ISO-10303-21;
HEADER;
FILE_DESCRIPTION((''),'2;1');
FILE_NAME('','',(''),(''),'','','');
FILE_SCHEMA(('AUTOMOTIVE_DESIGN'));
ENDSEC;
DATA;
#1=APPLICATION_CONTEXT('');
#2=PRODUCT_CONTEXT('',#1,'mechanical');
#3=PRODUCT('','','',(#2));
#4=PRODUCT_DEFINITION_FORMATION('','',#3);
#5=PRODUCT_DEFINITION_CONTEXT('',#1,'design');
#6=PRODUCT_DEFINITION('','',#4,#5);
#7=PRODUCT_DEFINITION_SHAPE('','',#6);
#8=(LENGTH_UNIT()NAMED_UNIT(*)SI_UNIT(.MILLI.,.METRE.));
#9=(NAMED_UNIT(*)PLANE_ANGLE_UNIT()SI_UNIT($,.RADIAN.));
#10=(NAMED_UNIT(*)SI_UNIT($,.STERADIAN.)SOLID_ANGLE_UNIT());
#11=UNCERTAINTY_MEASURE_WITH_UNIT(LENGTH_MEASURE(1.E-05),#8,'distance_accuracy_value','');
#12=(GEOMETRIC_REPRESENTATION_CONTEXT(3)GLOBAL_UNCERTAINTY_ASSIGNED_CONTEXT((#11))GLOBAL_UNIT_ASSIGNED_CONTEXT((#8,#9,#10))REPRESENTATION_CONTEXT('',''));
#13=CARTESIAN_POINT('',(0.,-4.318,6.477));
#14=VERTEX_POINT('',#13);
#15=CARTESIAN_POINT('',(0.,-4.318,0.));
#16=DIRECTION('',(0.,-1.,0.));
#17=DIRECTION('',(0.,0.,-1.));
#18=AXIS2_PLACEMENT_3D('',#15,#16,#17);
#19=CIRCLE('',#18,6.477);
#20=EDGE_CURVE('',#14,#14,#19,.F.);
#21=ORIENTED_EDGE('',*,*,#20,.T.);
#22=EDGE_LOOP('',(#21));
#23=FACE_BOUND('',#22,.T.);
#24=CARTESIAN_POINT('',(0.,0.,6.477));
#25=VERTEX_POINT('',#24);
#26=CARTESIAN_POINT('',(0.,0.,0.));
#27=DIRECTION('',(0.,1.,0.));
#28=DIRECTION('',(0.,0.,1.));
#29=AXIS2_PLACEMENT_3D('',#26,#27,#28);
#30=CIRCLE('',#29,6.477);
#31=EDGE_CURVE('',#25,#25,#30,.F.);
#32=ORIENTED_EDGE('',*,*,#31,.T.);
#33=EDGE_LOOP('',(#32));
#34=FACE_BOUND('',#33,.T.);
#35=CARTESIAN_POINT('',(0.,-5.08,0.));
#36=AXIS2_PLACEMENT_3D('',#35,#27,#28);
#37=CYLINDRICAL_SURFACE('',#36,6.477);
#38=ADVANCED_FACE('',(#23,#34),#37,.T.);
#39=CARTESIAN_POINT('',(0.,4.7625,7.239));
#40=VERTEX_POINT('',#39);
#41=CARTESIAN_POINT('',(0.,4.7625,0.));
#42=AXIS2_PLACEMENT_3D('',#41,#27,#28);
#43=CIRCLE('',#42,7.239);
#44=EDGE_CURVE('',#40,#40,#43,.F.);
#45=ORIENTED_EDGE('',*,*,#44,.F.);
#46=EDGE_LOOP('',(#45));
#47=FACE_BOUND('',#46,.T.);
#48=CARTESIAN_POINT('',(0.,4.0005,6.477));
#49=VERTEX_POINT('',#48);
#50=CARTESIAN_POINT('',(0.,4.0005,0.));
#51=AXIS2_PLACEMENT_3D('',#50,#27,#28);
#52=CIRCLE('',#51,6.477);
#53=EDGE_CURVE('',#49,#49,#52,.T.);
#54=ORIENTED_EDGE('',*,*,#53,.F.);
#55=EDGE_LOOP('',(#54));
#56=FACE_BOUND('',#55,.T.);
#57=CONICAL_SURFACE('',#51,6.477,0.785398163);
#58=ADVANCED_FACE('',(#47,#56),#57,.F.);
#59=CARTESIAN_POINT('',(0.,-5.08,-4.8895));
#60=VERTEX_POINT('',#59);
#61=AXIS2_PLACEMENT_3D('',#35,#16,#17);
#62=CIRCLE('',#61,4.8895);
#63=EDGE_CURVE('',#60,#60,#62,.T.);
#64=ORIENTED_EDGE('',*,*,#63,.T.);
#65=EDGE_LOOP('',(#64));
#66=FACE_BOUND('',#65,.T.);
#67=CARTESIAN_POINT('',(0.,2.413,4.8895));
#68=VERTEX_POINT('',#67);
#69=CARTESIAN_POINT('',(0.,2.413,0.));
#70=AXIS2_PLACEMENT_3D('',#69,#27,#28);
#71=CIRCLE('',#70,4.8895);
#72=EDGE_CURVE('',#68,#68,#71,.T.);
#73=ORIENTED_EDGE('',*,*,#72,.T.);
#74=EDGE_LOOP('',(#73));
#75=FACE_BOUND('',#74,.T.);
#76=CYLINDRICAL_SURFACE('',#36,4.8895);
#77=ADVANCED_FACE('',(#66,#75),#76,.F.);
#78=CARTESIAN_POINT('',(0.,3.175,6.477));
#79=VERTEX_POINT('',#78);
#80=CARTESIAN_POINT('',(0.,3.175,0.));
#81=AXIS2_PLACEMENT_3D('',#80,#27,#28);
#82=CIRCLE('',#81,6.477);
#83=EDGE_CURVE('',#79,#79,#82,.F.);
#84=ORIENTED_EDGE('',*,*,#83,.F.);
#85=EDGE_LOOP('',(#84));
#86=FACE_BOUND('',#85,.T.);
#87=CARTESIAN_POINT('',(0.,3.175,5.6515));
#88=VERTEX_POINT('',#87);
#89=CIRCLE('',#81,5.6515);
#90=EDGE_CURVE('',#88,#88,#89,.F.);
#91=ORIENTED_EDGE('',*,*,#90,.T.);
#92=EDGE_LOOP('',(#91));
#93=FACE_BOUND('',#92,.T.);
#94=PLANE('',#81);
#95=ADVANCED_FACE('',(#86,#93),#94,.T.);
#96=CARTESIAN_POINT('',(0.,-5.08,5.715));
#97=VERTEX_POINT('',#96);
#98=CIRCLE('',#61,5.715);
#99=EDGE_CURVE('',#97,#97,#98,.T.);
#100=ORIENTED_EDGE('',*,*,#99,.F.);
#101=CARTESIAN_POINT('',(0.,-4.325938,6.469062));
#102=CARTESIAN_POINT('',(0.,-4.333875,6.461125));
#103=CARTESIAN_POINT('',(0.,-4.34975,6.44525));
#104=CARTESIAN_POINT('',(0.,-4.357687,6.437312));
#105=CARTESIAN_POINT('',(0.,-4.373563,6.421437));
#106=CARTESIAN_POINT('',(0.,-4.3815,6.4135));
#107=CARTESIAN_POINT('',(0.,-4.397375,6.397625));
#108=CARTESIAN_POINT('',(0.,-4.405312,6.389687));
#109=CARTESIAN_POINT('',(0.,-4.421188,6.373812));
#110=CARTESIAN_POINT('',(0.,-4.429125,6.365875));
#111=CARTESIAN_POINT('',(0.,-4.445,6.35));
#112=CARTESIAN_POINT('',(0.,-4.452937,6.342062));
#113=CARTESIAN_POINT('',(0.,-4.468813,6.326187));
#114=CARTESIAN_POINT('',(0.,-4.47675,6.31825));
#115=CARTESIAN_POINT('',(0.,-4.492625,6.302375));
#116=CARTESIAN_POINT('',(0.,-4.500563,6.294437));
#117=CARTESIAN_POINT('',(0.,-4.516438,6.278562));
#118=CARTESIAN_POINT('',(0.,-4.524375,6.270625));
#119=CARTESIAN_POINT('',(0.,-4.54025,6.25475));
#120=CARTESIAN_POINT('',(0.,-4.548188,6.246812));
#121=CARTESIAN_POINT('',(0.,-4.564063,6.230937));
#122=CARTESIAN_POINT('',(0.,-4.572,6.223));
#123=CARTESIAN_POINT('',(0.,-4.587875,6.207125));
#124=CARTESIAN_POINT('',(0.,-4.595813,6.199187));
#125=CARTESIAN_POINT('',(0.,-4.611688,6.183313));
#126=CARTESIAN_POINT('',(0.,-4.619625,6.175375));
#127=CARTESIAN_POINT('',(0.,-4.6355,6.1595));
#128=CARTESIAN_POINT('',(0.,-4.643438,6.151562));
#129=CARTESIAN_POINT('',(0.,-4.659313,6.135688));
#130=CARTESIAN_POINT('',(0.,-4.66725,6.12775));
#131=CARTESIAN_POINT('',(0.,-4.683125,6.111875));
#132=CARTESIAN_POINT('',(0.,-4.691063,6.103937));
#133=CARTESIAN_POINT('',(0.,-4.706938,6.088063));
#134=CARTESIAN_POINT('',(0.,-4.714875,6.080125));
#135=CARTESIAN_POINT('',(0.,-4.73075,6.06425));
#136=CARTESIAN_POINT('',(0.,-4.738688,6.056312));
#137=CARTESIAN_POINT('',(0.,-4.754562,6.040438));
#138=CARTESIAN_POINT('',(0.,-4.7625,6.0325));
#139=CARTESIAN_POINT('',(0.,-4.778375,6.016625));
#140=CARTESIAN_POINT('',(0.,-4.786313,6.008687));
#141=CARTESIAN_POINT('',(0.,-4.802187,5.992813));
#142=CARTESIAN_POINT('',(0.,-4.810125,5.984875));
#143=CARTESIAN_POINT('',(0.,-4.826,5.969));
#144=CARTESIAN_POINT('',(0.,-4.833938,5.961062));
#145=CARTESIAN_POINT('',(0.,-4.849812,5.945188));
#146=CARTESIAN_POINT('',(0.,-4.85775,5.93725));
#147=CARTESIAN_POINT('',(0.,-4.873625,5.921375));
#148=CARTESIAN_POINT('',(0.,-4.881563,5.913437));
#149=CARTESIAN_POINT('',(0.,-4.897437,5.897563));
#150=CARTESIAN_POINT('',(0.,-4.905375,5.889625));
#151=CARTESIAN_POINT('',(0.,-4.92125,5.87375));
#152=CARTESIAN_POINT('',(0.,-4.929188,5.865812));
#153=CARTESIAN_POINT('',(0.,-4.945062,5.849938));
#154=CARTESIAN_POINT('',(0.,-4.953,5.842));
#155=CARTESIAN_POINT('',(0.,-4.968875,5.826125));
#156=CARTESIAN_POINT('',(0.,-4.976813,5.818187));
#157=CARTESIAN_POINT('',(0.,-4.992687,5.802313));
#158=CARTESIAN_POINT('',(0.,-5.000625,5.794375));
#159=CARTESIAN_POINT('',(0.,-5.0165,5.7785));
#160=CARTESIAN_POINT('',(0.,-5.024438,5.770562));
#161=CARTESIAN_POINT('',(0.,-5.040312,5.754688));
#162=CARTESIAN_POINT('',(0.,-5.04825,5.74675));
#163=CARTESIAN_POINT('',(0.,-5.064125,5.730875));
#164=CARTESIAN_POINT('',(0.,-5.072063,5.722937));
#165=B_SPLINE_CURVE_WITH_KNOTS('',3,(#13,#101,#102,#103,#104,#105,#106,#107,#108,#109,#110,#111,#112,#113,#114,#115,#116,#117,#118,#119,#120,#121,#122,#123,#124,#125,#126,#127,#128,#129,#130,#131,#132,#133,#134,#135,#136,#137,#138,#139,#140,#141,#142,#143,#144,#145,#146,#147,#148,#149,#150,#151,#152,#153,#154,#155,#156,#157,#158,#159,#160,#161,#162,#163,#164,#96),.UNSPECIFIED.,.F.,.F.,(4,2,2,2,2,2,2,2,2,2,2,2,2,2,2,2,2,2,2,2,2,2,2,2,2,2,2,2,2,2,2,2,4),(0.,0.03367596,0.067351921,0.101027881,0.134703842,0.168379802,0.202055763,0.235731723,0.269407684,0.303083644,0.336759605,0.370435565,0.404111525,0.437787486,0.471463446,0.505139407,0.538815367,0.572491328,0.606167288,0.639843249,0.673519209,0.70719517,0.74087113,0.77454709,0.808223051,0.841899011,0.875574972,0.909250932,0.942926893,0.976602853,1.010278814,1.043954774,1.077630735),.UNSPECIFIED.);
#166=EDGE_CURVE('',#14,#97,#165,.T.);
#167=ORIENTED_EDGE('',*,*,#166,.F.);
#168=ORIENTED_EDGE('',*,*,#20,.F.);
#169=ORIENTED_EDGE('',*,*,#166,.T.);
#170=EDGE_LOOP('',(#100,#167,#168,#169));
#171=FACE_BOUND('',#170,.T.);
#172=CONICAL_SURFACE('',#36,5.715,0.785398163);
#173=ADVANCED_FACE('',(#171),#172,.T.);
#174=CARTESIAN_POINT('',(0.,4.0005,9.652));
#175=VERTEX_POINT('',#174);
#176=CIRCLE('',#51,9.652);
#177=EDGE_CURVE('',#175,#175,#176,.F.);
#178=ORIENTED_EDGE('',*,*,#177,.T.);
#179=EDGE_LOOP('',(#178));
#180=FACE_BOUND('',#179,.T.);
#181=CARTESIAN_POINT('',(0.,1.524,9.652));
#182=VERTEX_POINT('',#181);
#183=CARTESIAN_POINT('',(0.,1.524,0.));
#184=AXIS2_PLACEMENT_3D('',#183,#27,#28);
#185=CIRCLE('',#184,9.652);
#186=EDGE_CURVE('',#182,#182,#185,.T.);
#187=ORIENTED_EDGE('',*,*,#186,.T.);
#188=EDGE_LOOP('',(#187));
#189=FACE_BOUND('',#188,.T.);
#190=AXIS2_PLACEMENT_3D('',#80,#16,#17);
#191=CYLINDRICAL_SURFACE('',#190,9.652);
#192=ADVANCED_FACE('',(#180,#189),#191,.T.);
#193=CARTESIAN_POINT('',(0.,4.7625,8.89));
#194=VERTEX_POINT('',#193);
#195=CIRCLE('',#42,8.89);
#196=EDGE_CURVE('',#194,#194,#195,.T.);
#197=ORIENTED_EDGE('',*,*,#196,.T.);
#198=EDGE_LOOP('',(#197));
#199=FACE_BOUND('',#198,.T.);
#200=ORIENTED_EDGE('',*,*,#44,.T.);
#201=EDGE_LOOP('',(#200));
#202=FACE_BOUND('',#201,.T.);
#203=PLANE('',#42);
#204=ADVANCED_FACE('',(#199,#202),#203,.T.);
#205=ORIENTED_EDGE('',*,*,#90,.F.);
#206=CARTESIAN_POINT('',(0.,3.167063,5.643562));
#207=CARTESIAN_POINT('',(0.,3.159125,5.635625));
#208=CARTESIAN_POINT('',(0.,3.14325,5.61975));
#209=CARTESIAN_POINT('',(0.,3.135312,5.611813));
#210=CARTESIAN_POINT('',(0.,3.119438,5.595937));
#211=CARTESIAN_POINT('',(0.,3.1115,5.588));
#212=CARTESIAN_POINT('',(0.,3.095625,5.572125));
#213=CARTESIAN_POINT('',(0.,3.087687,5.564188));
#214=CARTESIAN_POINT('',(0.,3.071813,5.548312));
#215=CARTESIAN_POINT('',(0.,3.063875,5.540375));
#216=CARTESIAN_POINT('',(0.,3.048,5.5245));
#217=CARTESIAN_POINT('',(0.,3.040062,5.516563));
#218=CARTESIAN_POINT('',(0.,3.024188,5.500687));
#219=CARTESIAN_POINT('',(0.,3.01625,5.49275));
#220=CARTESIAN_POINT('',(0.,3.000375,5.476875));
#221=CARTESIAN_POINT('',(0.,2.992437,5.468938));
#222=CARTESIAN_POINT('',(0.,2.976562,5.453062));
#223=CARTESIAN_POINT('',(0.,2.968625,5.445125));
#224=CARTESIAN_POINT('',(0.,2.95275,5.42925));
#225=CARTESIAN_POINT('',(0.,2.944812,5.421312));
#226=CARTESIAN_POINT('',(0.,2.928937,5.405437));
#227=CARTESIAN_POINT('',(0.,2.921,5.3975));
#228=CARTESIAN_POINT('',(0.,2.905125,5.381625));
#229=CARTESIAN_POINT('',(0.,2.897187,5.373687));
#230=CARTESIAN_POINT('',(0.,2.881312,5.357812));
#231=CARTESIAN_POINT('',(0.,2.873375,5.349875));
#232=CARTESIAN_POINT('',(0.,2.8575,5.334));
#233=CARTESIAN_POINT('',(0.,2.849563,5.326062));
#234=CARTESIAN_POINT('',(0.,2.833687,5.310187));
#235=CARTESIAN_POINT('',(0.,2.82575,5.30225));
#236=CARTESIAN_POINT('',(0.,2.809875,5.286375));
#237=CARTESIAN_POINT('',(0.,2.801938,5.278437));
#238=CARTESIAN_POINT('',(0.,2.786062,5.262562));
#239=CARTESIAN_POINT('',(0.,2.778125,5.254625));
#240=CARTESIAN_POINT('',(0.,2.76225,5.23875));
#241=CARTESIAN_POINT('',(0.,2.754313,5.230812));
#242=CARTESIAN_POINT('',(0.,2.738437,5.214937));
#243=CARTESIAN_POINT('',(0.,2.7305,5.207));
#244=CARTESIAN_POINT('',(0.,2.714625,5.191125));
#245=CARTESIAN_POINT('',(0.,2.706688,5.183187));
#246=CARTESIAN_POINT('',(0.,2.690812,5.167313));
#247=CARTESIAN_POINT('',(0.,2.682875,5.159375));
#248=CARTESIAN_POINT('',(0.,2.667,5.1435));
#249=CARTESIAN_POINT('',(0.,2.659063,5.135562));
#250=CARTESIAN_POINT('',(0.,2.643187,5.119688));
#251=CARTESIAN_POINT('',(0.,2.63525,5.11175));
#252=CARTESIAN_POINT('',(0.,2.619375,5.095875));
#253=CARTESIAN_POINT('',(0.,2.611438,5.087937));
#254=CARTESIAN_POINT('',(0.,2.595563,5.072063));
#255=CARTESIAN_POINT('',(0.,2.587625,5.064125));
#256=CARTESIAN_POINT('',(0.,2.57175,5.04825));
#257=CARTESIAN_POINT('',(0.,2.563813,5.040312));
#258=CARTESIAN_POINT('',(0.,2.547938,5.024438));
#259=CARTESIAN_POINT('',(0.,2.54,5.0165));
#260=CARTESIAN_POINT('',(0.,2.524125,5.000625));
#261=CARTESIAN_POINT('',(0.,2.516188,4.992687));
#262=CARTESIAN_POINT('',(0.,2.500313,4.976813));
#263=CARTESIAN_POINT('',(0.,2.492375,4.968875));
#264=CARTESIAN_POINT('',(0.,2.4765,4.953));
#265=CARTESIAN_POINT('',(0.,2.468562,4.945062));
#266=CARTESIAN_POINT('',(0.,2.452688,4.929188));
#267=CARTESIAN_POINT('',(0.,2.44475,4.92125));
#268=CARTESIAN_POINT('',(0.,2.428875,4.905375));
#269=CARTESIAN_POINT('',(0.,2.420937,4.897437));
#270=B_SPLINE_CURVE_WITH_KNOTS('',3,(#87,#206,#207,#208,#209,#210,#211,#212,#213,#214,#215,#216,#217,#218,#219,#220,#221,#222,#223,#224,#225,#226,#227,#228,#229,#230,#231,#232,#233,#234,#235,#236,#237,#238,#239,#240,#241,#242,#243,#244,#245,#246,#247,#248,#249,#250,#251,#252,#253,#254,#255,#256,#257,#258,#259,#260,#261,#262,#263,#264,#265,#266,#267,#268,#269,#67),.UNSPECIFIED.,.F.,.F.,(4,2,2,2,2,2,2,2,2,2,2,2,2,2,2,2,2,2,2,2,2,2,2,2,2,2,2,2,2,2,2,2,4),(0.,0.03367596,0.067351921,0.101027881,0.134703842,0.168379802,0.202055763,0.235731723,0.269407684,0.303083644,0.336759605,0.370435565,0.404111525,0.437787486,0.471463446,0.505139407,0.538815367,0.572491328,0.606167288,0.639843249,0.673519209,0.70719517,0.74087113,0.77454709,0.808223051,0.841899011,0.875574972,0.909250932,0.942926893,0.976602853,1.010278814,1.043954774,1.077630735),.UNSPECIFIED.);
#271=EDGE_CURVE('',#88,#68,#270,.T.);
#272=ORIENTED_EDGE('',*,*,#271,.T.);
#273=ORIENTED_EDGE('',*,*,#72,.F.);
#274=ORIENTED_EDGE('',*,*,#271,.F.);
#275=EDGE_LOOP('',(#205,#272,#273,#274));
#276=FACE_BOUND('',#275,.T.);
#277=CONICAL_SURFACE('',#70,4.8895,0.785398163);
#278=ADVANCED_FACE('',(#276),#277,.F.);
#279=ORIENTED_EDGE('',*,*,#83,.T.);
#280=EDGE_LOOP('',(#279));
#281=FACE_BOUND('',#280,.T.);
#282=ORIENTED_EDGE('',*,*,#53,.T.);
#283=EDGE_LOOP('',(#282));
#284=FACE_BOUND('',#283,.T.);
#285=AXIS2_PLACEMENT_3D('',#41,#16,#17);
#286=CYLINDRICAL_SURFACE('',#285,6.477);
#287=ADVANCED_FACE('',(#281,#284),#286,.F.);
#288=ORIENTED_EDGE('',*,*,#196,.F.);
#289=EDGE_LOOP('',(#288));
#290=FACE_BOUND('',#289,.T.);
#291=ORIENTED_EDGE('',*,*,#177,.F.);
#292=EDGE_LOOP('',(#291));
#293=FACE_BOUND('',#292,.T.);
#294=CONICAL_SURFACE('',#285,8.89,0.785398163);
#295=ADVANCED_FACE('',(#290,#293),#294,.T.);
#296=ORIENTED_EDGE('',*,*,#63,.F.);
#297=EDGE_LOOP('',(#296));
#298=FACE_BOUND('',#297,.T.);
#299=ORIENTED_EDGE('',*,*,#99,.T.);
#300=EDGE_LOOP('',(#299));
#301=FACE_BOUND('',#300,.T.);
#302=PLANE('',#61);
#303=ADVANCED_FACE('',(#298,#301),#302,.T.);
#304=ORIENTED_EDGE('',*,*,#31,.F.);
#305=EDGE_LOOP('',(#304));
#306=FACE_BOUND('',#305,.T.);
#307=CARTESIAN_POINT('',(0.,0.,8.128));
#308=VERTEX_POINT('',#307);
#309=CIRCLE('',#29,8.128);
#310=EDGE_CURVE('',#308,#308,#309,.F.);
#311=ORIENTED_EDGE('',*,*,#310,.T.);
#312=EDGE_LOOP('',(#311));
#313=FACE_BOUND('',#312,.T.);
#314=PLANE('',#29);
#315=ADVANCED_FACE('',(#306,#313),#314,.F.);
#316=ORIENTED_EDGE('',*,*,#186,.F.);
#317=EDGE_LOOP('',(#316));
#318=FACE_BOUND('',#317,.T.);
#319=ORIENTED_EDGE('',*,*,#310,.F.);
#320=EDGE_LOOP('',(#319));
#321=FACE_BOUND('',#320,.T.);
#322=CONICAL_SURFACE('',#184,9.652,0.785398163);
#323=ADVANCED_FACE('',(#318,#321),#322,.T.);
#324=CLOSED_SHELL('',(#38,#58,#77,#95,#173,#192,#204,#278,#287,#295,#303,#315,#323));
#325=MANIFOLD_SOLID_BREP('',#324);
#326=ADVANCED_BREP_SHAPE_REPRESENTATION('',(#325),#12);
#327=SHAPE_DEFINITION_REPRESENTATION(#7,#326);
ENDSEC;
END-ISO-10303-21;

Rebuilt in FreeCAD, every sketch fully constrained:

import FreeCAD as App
import Part
import Sketcher
from FreeCAD import Vector
Q = App.Units.Quantity


def edges_at(feature, points):
    """Names of the edges that pass closest to the given points."""
    edges = feature.Shape.Edges
    near = lambda p: min(range(len(edges)), key=lambda i: edges[i].distToShape(Part.Vertex(*p))[0])
    return sorted({f"Edge{near(p) + 1}" for p in points})

doc = App.newDocument("Part")
body = doc.addObject("PartDesign::Body", "Body")

sketch1 = body.newObject("Sketcher::SketchObject", "Sketch")
sketch1.AttachmentSupport = (doc.getObject("XZ_Plane"), [""])
sketch1.MapMode = "FlatFace"
sketch1.addGeometry(Part.Circle(Vector(0, 0, 0), Vector(0, 0, 1), 10), False)
sketch1.addConstraint(Sketcher.Constraint("Coincident", 0, 3, -1, 1))
sketch1.addConstraint(Sketcher.Constraint("Diameter", 0, Q("0.76 in")))
pad1 = body.newObject("PartDesign::Pad", "Pad")
pad1.Profile = sketch1
pad1.Length = Q("0.125 in")
pad1.Reversed = True

sketch2 = body.newObject("Sketcher::SketchObject", "Sketch001")
sketch2.AttachmentSupport = (doc.getObject("XZ_Plane"), [""])
sketch2.MapMode = "FlatFace"
sketch2.AttachmentOffset = App.Placement(Vector(0, 0, -0.125 * 25.4), App.Rotation())
sketch2.addGeometry(Part.Circle(Vector(0, 0, 0), Vector(0, 0, 1), 10), False)
sketch2.addGeometry(Part.Circle(Vector(0, 0, 0), Vector(0, 0, 1), 6), False)
sketch2.addConstraint(Sketcher.Constraint("Coincident", 0, 3, -1, 1))
sketch2.addConstraint(Sketcher.Constraint("Coincident", 1, 3, -1, 1))
sketch2.addConstraint(Sketcher.Constraint("Diameter", 0, Q("0.76 in")))
sketch2.addConstraint(Sketcher.Constraint("Diameter", 1, Q("0.51 in")))
pad2 = body.newObject("PartDesign::Pad", "Pad001")
pad2.Profile = sketch2
pad2.Length = Q("0.0625 in")
pad2.Reversed = True

sketch3 = body.newObject("Sketcher::SketchObject", "Sketch002")
sketch3.AttachmentSupport = (doc.getObject("XZ_Plane"), [""])
sketch3.MapMode = "FlatFace"
sketch3.AttachmentOffset = App.Placement(Vector(0, 0, 0.2 * 25.4), App.Rotation())
sketch3.addGeometry(Part.Circle(Vector(0, 0, 0), Vector(0, 0, 1), 6.5), False)
sketch3.addGeometry(Part.Circle(Vector(0, 0, 0), Vector(0, 0, 1), 4.9), False)
sketch3.addConstraint(Sketcher.Constraint("Coincident", 0, 3, -1, 1))
sketch3.addConstraint(Sketcher.Constraint("Coincident", 1, 3, -1, 1))
sketch3.addConstraint(Sketcher.Constraint("Diameter", 0, Q("0.51 in")))
sketch3.addConstraint(Sketcher.Constraint("Diameter", 1, Q("0.385 in")))
pad3 = body.newObject("PartDesign::Pad", "Pad002")
pad3.Profile = sketch3
pad3.Length = Q("0.2 in")
pad3.Reversed = True

sketch4 = body.newObject("Sketcher::SketchObject", "Sketch003")
sketch4.AttachmentSupport = (doc.getObject("XZ_Plane"), [""])
sketch4.MapMode = "FlatFace"
sketch4.addGeometry(Part.Circle(Vector(0, 0, 0), Vector(0, 0, 1), 4.9), False)
sketch4.addConstraint(Sketcher.Constraint("Coincident", 0, 3, -1, 1))
sketch4.addConstraint(Sketcher.Constraint("Diameter", 0, Q("0.385 in")))
pocket1 = body.newObject("PartDesign::Pocket", "Pocket")
pocket1.Profile = sketch4
pocket1.Type = "ThroughAll"
doc.recompute()

chamfer = body.newObject("PartDesign::Chamfer", "Chamfer")
chamfer.Base = (pocket1, edges_at(pocket1, [(0, 0, -9.652)]))
chamfer.Size = Q("0.06 in")
doc.recompute()

chamfer2 = body.newObject("PartDesign::Chamfer", "Chamfer001")
chamfer2.Base = (chamfer, edges_at(chamfer, [(0, 3.175, -4.889), (0, 4.763, -9.652), (0, 4.763, -6.477)]))
chamfer2.Size = Q("0.03 in")
doc.recompute()

chamfer3 = body.newObject("PartDesign::Chamfer", "Chamfer002")
chamfer3.Base = (chamfer2, edges_at(chamfer2, [(0, -5.08, -6.477)]))
chamfer3.Size = Q("0.03 in")

doc.recompute()
